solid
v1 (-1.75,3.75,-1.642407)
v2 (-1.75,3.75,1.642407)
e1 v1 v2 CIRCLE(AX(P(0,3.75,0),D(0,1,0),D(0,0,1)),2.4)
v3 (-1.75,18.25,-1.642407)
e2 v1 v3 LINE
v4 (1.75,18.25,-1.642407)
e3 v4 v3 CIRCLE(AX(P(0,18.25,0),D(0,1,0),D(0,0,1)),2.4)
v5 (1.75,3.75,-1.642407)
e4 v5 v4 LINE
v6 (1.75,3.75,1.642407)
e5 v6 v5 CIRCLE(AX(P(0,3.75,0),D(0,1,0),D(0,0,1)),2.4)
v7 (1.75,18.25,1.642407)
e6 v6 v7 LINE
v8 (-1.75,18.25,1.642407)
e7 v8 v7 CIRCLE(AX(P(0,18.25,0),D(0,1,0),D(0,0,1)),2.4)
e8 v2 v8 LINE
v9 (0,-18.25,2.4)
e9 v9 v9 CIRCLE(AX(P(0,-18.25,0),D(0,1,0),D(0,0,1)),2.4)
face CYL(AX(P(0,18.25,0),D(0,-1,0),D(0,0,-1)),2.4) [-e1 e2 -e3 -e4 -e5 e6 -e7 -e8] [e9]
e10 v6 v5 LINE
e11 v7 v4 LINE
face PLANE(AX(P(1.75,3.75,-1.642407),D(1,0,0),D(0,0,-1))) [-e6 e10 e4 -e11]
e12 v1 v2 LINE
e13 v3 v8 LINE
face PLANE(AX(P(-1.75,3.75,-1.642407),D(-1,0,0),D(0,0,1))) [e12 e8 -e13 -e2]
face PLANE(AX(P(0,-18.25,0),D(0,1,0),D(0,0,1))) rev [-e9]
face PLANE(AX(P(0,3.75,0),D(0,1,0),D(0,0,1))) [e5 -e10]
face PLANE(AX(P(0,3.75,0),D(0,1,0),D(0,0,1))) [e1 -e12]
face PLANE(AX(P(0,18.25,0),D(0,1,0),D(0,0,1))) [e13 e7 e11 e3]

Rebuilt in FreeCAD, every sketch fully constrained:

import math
import FreeCAD as App
import Part
import Sketcher

V = App.Vector
Q = App.Units.Quantity

doc = App.newDocument("Part")
body = doc.addObject("PartDesign::Body", "Body")

sketch1 = body.newObject("Sketcher::SketchObject", "Sketch")
sketch1.AttachmentSupport = (doc.getObject("XZ_Plane"), [""])
sketch1.MapMode = "FlatFace"
sketch1.addGeometry(Part.Circle(V(0, 0, 0), V(0, 0, 1), 2.4), False)
sketch1.addConstraint([
    Sketcher.Constraint("Coincident", 0, 3, -1, 1),
    Sketcher.Constraint("Diameter", 0, Q("4.8 mm")),
])
pad1 = body.newObject("PartDesign::Pad", "Pad")
pad1.Profile = sketch1
pad1.Length = 36.5
pad1.Midplane = True

sketch2 = body.newObject("Sketcher::SketchObject", "Sketch001")
sketch2.AttachmentSupport = (doc.getObject("XZ_Plane"), [""])
sketch2.MapMode = "FlatFace"
sketch2.AttachmentOffset = App.Placement(V(0, 0, -18.25), App.Rotation())
sketch2.addGeometry([
    Part.LineSegment(V(-11.8, -4, 0), V(-11.8, 4, 0)),
    Part.ArcOfCircle(Part.Circle(V(0, 0, 0), V(0, 0, 1), 12.4), math.radians(19), math.radians(161)),
    Part.LineSegment(V(11.8, 4, 0), V(11.8, -4, 0)),
    Part.ArcOfCircle(Part.Circle(V(0, 0, 0), V(0, 0, 1), 12.4), math.radians(-161), math.radians(-19)),
    Part.LineSegment(V(-1.8, 1.6, 0), V(-1.8, -1.6, 0)),
    Part.ArcOfCircle(Part.Circle(V(0, 0, 0), V(0, 0, 1), 2.4), math.radians(-137), math.radians(-43)),
    Part.LineSegment(V(1.8, -1.6, 0), V(1.8, 1.6, 0)),
    Part.ArcOfCircle(Part.Circle(V(0, 0, 0), V(0, 0, 1), 2.4), math.radians(43), math.radians(137)),
], False)
sketch2.addConstraint([
    Sketcher.Constraint("Coincident", 0, 2, 1, 2),
    Sketcher.Constraint("Coincident", 1, 1, 2, 1),
    Sketcher.Constraint("Coincident", 2, 2, 3, 2),
    Sketcher.Constraint("Coincident", 3, 1, 0, 1),
    Sketcher.Constraint("Coincident", 4, 2, 5, 1),
    Sketcher.Constraint("Coincident", 5, 2, 6, 1),
    Sketcher.Constraint("Coincident", 6, 2, 7, 1),
    Sketcher.Constraint("Coincident", 7, 2, 4, 1),
    Sketcher.Constraint("Vertical", 0),
    Sketcher.Constraint("Vertical", 2),
    Sketcher.Constraint("Vertical", 4),
    Sketcher.Constraint("Vertical", 6),
    Sketcher.Constraint("Coincident", 1, 3, -1, 1),
    Sketcher.Constraint("Coincident", 3, 3, -1, 1),
    Sketcher.Constraint("Coincident", 5, 3, -1, 1),
    Sketcher.Constraint("Coincident", 7, 3, -1, 1),
    Sketcher.Constraint("Equal", 1, 3),
    Sketcher.Constraint("Equal", 5, 7),
    Sketcher.Constraint("Horizontal", 0, 2, 1, 1),
    Sketcher.Constraint("Horizontal", 4, 2, 5, 2),
    Sketcher.Constraint("Radius", 1, Q("12.4 mm")),
    Sketcher.Constraint("Radius", 5, Q("2.4 mm")),
    Sketcher.Constraint("DistanceX", 3, 1, 4, 2, Q("10 mm")),
    Sketcher.Constraint("DistanceX", 0, 2, 1, 1, Q("23.5 mm")),
])
pocket1 = body.newObject("PartDesign::Pocket", "Pocket")
pocket1.Profile = sketch2
pocket1.Length = 14.5
pocket1.Reversed = True

doc.recompute()
